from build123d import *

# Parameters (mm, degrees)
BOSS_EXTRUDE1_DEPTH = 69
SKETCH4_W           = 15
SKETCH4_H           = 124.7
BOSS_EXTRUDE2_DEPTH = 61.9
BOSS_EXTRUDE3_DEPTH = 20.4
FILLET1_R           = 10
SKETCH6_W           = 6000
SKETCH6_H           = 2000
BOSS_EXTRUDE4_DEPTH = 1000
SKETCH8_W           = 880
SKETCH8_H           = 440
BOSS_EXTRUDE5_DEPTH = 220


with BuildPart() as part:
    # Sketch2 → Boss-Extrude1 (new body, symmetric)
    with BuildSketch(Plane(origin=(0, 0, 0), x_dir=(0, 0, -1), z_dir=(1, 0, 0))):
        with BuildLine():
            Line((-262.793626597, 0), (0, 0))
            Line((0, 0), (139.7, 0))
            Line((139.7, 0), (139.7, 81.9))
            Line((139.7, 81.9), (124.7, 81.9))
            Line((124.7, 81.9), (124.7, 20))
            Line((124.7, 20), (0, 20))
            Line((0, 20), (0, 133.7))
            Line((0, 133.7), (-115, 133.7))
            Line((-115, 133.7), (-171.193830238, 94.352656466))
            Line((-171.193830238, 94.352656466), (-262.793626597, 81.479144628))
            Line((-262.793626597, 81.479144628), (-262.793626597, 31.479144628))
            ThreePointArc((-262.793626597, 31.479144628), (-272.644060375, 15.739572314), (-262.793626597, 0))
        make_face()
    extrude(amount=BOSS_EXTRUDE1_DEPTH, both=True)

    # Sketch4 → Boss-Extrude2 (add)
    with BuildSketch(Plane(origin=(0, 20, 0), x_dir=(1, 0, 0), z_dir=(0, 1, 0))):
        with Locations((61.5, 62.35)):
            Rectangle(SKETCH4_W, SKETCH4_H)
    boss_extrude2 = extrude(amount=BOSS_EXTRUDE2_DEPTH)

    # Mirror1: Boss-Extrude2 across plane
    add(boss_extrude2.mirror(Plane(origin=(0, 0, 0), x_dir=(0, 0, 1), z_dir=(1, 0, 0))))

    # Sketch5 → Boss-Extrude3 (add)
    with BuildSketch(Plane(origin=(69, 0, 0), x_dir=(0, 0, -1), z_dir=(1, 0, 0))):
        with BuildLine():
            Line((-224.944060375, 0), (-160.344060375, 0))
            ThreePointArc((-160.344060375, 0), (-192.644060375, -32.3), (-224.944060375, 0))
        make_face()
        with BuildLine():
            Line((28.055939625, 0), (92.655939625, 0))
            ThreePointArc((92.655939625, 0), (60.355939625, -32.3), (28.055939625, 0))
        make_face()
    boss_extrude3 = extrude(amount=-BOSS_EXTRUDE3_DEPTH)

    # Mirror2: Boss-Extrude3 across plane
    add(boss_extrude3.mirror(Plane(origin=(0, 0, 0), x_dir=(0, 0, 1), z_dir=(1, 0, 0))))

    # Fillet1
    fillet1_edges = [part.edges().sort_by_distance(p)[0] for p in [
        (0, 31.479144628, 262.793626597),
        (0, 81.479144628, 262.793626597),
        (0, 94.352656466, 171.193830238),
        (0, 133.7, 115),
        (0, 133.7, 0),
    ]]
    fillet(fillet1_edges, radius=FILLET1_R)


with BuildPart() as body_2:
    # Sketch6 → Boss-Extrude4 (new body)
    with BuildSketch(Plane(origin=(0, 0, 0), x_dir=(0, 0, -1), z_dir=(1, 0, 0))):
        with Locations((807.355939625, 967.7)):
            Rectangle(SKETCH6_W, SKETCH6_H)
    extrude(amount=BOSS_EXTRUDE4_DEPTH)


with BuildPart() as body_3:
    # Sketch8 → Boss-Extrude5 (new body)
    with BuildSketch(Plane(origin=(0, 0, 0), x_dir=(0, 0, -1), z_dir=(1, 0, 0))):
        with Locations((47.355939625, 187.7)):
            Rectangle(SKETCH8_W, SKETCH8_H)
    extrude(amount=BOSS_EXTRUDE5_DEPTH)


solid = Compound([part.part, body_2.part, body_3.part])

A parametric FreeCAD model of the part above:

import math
import FreeCAD as App
import Part
import Sketcher
Q = App.Units.Quantity


def edges_at(feature, points):
    """Names of the edges that pass closest to the given points."""
    edges = feature.Shape.Edges
    near = lambda p: min(range(len(edges)), key=lambda i: edges[i].distToShape(Part.Vertex(*p))[0])
    return sorted({f"Edge{near(p) + 1}" for p in points})

doc = App.newDocument("Part")
body = doc.addObject("PartDesign::Body", "Body")

# Sketch on YZ plane
sketch1 = doc.addObject("Sketcher::SketchObject", "Sketch")
body.addObject(sketch1)
sketch1.AttachmentSupport = (doc.YZ_Plane, [""])
sketch1.MapMode = "FlatFace"
sketch1.addGeometry(Part.LineSegment(App.Vector(0, 263, 0), App.Vector(0, -140, 0)), False)
sketch1.addGeometry(Part.LineSegment(App.Vector(0, -140, 0), App.Vector(82, -140, 0)), False)
sketch1.addGeometry(Part.LineSegment(App.Vector(82, -140, 0), App.Vector(82, -125, 0)), False)
sketch1.addGeometry(Part.LineSegment(App.Vector(82, -125, 0), App.Vector(20, -125, 0)), False)
sketch1.addGeometry(Part.LineSegment(App.Vector(20, -125, 0), App.Vector(20, 0, 0)), False)
sketch1.addGeometry(Part.LineSegment(App.Vector(20, 0, 0), App.Vector(134, 0, 0)), False)
sketch1.addGeometry(Part.LineSegment(App.Vector(134, 0, 0), App.Vector(134, 115, 0)), False)
sketch1.addGeometry(Part.LineSegment(App.Vector(134, 115, 0), App.Vector(94, 171, 0)), False)
sketch1.addGeometry(Part.LineSegment(App.Vector(94, 171, 0), App.Vector(81, 263, 0)), False)
sketch1.addGeometry(Part.LineSegment(App.Vector(81, 263, 0), App.Vector(31, 263, 0)), False)
sketch1.addGeometry(Part.ArcOfCircle(Part.Circle(App.Vector(16, 255, 0), App.Vector(0, 0, 1), 18), math.radians(26), math.radians(154)), False)
sketch1.addConstraint(Sketcher.Constraint("Coincident", 0, 2, 1, 1))
sketch1.addConstraint(Sketcher.Constraint("Coincident", 1, 2, 2, 1))
sketch1.addConstraint(Sketcher.Constraint("Coincident", 2, 2, 3, 1))
sketch1.addConstraint(Sketcher.Constraint("Coincident", 3, 2, 4, 1))
sketch1.addConstraint(Sketcher.Constraint("Coincident", 4, 2, 5, 1))
sketch1.addConstraint(Sketcher.Constraint("Coincident", 5, 2, 6, 1))
sketch1.addConstraint(Sketcher.Constraint("Coincident", 6, 2, 7, 1))
sketch1.addConstraint(Sketcher.Constraint("Coincident", 7, 2, 8, 1))
sketch1.addConstraint(Sketcher.Constraint("Coincident", 8, 2, 9, 1))
sketch1.addConstraint(Sketcher.Constraint("Coincident", 9, 2, 10, 1))
sketch1.addConstraint(Sketcher.Constraint("Coincident", 10, 2, 0, 1))
sketch1.addConstraint(Sketcher.Constraint("Vertical", 0))
sketch1.addConstraint(Sketcher.Constraint("Horizontal", 1))
sketch1.addConstraint(Sketcher.Constraint("Vertical", 2))
sketch1.addConstraint(Sketcher.Constraint("Horizontal", 3))
sketch1.addConstraint(Sketcher.Constraint("Vertical", 4))
sketch1.addConstraint(Sketcher.Constraint("Horizontal", 5))
sketch1.addConstraint(Sketcher.Constraint("Vertical", 6))
sketch1.addConstraint(Sketcher.Constraint("Horizontal", 9))
sketch1.addConstraint(Sketcher.Constraint("PointOnObject", 0, 2, -2))
sketch1.addConstraint(Sketcher.Constraint("PointOnObject", 4, 2, -1))
sketch1.addConstraint(Sketcher.Constraint("Horizontal", 9, 2, 10, 2))
sketch1.addConstraint(Sketcher.Constraint("Radius", 10, 17.5))
sketch1.addConstraint(Sketcher.Constraint("DistanceX", 9, 2, 9, 1, 50.0))
sketch1.addConstraint(Sketcher.Constraint("DistanceY", 2, 1, 2, 2, 15.0))
sketch1.addConstraint(Sketcher.Constraint("DistanceY", 6, 1, 6, 2, 115.0))
sketch1.addConstraint(Sketcher.Constraint("Angle", 7, Q("125 deg")))
sketch1.addConstraint(Sketcher.Constraint("Angle", 8, Q("98 deg")))
sketch1.addConstraint(Sketcher.Constraint("DistanceX", 1, 1, 1, 2, 81.9))
sketch1.addConstraint(Sketcher.Constraint("DistanceX", 3, 2, 3, 1, 61.9))
sketch1.addConstraint(Sketcher.Constraint("DistanceX", 5, 1, 5, 2, 113.7))
sketch1.addConstraint(Sketcher.Constraint("DistanceY", 4, 1, 4, 2, 124.7))
sketch1.addConstraint(Sketcher.Constraint("Distance", 7, 68.6))
sketch1.addConstraint(Sketcher.Constraint("Distance", 8, 92.5))
pad1 = doc.addObject("PartDesign::Pad", "Pad")
body.addObject(pad1)
pad1.Profile = sketch1
pad1.Length = 138
pad1.Midplane = True

# Sketch on XZ plane
sketch2 = doc.addObject("Sketcher::SketchObject", "Sketch001")
body.addObject(sketch2)
sketch2.AttachmentSupport = (doc.XZ_Plane, [""])
sketch2.MapMode = "FlatFace"
sketch2.AttachmentOffset = App.Placement(App.Vector(0, 0, -20), App.Rotation())
sketch2.addGeometry(Part.LineSegment(App.Vector(54, -125, 0), App.Vector(54, 0, 0)), False)
sketch2.addGeometry(Part.LineSegment(App.Vector(54, 0, 0), App.Vector(69, 0, 0)), False)
sketch2.addGeometry(Part.LineSegment(App.Vector(69, 0, 0), App.Vector(69, -125, 0)), False)
sketch2.addGeometry(Part.LineSegment(App.Vector(69, -125, 0), App.Vector(54, -125, 0)), False)
sketch2.addConstraint(Sketcher.Constraint("Coincident", 0, 2, 1, 1))
sketch2.addConstraint(Sketcher.Constraint("Coincident", 1, 2, 2, 1))
sketch2.addConstraint(Sketcher.Constraint("Coincident", 2, 2, 3, 1))
sketch2.addConstraint(Sketcher.Constraint("Coincident", 3, 2, 0, 1))
sketch2.addConstraint(Sketcher.Constraint("Vertical", 0))
sketch2.addConstraint(Sketcher.Constraint("Horizontal", 1))
sketch2.addConstraint(Sketcher.Constraint("Vertical", 2))
sketch2.addConstraint(Sketcher.Constraint("Horizontal", 3))
sketch2.addConstraint(Sketcher.Constraint("PointOnObject", 0, 2, -1))
sketch2.addConstraint(Sketcher.Constraint("DistanceX", 1, 1, 1, 2, 15.0))
sketch2.addConstraint(Sketcher.Constraint("DistanceY", 0, 1, 0, 2, 124.7))
sketch2.addConstraint(Sketcher.Constraint("DistanceX", -1, 1, 0, 2, 54.0))
pad2 = doc.addObject("PartDesign::Pad", "Pad001")
body.addObject(pad2)
pad2.Profile = sketch2
pad2.Length = 61.9
pad2.Reversed = True
doc.recompute()

mirrored = doc.addObject("PartDesign::Mirrored", "Mirrored")
body.addObject(mirrored)
mirrored.Originals = [pad2]
mirrored.MirrorPlane = (doc.YZ_Plane, [""])
body.Tip = mirrored

# Sketch on YZ plane
sketch3 = doc.addObject("Sketcher::SketchObject", "Sketch002")
body.addObject(sketch3)
sketch3.AttachmentSupport = (doc.YZ_Plane, [""])
sketch3.MapMode = "FlatFace"
sketch3.AttachmentOffset = App.Placement(App.Vector(0, 0, 69), App.Rotation())
sketch3.addGeometry(Part.LineSegment(App.Vector(0, 160, 0), App.Vector(0, 225, 0)), False)
sketch3.addGeometry(Part.ArcOfCircle(Part.Circle(App.Vector(0, 193, 0), App.Vector(0, 0, 1), 32), math.radians(90), math.radians(270)), False)
sketch3.addGeometry(Part.LineSegment(App.Vector(0, -93, 0), App.Vector(0, -28, 0)), False)
sketch3.addGeometry(Part.ArcOfCircle(Part.Circle(App.Vector(0, -60, 0), App.Vector(0, 0, 1), 32), math.radians(90), math.radians(270)), False)
sketch3.addConstraint(Sketcher.Constraint("Coincident", 0, 1, 1, 2))
sketch3.addConstraint(Sketcher.Constraint("Coincident", 1, 1, 0, 2))
sketch3.addConstraint(Sketcher.Constraint("Coincident", 2, 1, 3, 2))
sketch3.addConstraint(Sketcher.Constraint("Coincident", 3, 1, 2, 2))
sketch3.addConstraint(Sketcher.Constraint("Vertical", 0))
sketch3.addConstraint(Sketcher.Constraint("Vertical", 2))
sketch3.addConstraint(Sketcher.Constraint("Equal", 1, 3))
sketch3.addConstraint(Sketcher.Constraint("PointOnObject", 1, 3, -2))
sketch3.addConstraint(Sketcher.Constraint("PointOnObject", 3, 3, -2))
sketch3.addConstraint(Sketcher.Constraint("PointOnObject", 0, 1, -2))
sketch3.addConstraint(Sketcher.Constraint("PointOnObject", 2, 1, -2))
sketch3.addConstraint(Sketcher.Constraint("Radius", 1, 32.3))
sketch3.addConstraint(Sketcher.Constraint("DistanceY", 3, 3, 1, 3, 253.0))
sketch3.addConstraint(Sketcher.Constraint("DistanceY", -1, 1, 1, 3, 192.64406))
pad3 = doc.addObject("PartDesign::Pad", "Pad002")
body.addObject(pad3)
pad3.Profile = sketch3
pad3.Length = 20.4
pad3.Reversed = True
doc.recompute()

mirrored2 = doc.addObject("PartDesign::Mirrored", "Mirrored001")
body.addObject(mirrored2)
mirrored2.Originals = [pad3]
mirrored2.MirrorPlane = (doc.YZ_Plane, [""])
body.Tip = mirrored2
doc.recompute()

fillet = doc.addObject("PartDesign::Fillet", "Fillet")
body.addObject(fillet)
fillet.Base = (mirrored2, edges_at(mirrored2, [
    (0, 31.479, 262.794),
    (0, 81.479, 262.794),
    (0, 94.353, 171.194),
    (0, 133.7, 115),
    (0, 133.7, 0),
]))
fillet.Radius = 10
body2 = doc.addObject("PartDesign::Body", "Body001")

# Sketch on YZ plane
sketch4 = doc.addObject("Sketcher::SketchObject", "Sketch003")
body2.addObject(sketch4)
sketch4.AttachmentSupport = (doc.getObject("YZ_Plane001"), [""])
sketch4.MapMode = "FlatFace"
sketch4.addGeometry(Part.LineSegment(App.Vector(1968, 2193, 0), App.Vector(-32, 2193, 0)), False)
sketch4.addGeometry(Part.LineSegment(App.Vector(-32, 2193, 0), App.Vector(-32, -3807, 0)), False)
sketch4.addGeometry(Part.LineSegment(App.Vector(-32, -3807, 0), App.Vector(1968, -3807, 0)), False)
sketch4.addGeometry(Part.LineSegment(App.Vector(1968, -3807, 0), App.Vector(1968, 2193, 0)), False)
sketch4.addConstraint(Sketcher.Constraint("Coincident", 0, 2, 1, 1))
sketch4.addConstraint(Sketcher.Constraint("Coincident", 1, 2, 2, 1))
sketch4.addConstraint(Sketcher.Constraint("Coincident", 2, 2, 3, 1))
sketch4.addConstraint(Sketcher.Constraint("Coincident", 3, 2, 0, 1))
sketch4.addConstraint(Sketcher.Constraint("Horizontal", 0))
sketch4.addConstraint(Sketcher.Constraint("Vertical", 1))
sketch4.addConstraint(Sketcher.Constraint("Horizontal", 2))
sketch4.addConstraint(Sketcher.Constraint("Vertical", 3))
sketch4.addConstraint(Sketcher.Constraint("DistanceX", 0, 2, 0, 1, 2000.0))
sketch4.addConstraint(Sketcher.Constraint("DistanceY", 1, 2, 1, 1, 6000.0))
sketch4.addConstraint(Sketcher.Constraint("DistanceX", 0, 2, -1, 1, 32.3))
sketch4.addConstraint(Sketcher.Constraint("DistanceY", -1, 1, 0, 2, 2192.64406))
pad4 = doc.addObject("PartDesign::Pad", "Pad003")
body2.addObject(pad4)
pad4.Profile = sketch4
pad4.Length = 1000
body3 = doc.addObject("PartDesign::Body", "Body002")

# Sketch on YZ plane
sketch5 = doc.addObject("Sketcher::SketchObject", "Sketch004")
body3.addObject(sketch5)
sketch5.AttachmentSupport = (doc.getObject("YZ_Plane002"), [""])
sketch5.MapMode = "FlatFace"
sketch5.addGeometry(Part.LineSegment(App.Vector(408, 393, 0), App.Vector(-32, 393, 0)), False)
sketch5.addGeometry(Part.LineSegment(App.Vector(-32, 393, 0), App.Vector(-32, -487, 0)), False)
sketch5.addGeometry(Part.LineSegment(App.Vector(-32, -487, 0), App.Vector(408, -487, 0)), False)
sketch5.addGeometry(Part.LineSegment(App.Vector(408, -487, 0), App.Vector(408, 393, 0)), False)
sketch5.addConstraint(Sketcher.Constraint("Coincident", 0, 2, 1, 1))
sketch5.addConstraint(Sketcher.Constraint("Coincident", 1, 2, 2, 1))
sketch5.addConstraint(Sketcher.Constraint("Coincident", 2, 2, 3, 1))
sketch5.addConstraint(Sketcher.Constraint("Coincident", 3, 2, 0, 1))
sketch5.addConstraint(Sketcher.Constraint("Horizontal", 0))
sketch5.addConstraint(Sketcher.Constraint("Vertical", 1))
sketch5.addConstraint(Sketcher.Constraint("Horizontal", 2))
sketch5.addConstraint(Sketcher.Constraint("Vertical", 3))
sketch5.addConstraint(Sketcher.Constraint("DistanceX", 0, 2, 0, 1, 440.0))
sketch5.addConstraint(Sketcher.Constraint("DistanceY", 1, 2, 1, 1, 880.0))
sketch5.addConstraint(Sketcher.Constraint("DistanceX", 0, 2, -1, 1, 32.3))
sketch5.addConstraint(Sketcher.Constraint("DistanceY", -1, 1, 0, 2, 392.64406))
pad5 = doc.addObject("PartDesign::Pad", "Pad004")
body3.addObject(pad5)
pad5.Profile = sketch5
pad5.Length = 220

doc.recompute()
